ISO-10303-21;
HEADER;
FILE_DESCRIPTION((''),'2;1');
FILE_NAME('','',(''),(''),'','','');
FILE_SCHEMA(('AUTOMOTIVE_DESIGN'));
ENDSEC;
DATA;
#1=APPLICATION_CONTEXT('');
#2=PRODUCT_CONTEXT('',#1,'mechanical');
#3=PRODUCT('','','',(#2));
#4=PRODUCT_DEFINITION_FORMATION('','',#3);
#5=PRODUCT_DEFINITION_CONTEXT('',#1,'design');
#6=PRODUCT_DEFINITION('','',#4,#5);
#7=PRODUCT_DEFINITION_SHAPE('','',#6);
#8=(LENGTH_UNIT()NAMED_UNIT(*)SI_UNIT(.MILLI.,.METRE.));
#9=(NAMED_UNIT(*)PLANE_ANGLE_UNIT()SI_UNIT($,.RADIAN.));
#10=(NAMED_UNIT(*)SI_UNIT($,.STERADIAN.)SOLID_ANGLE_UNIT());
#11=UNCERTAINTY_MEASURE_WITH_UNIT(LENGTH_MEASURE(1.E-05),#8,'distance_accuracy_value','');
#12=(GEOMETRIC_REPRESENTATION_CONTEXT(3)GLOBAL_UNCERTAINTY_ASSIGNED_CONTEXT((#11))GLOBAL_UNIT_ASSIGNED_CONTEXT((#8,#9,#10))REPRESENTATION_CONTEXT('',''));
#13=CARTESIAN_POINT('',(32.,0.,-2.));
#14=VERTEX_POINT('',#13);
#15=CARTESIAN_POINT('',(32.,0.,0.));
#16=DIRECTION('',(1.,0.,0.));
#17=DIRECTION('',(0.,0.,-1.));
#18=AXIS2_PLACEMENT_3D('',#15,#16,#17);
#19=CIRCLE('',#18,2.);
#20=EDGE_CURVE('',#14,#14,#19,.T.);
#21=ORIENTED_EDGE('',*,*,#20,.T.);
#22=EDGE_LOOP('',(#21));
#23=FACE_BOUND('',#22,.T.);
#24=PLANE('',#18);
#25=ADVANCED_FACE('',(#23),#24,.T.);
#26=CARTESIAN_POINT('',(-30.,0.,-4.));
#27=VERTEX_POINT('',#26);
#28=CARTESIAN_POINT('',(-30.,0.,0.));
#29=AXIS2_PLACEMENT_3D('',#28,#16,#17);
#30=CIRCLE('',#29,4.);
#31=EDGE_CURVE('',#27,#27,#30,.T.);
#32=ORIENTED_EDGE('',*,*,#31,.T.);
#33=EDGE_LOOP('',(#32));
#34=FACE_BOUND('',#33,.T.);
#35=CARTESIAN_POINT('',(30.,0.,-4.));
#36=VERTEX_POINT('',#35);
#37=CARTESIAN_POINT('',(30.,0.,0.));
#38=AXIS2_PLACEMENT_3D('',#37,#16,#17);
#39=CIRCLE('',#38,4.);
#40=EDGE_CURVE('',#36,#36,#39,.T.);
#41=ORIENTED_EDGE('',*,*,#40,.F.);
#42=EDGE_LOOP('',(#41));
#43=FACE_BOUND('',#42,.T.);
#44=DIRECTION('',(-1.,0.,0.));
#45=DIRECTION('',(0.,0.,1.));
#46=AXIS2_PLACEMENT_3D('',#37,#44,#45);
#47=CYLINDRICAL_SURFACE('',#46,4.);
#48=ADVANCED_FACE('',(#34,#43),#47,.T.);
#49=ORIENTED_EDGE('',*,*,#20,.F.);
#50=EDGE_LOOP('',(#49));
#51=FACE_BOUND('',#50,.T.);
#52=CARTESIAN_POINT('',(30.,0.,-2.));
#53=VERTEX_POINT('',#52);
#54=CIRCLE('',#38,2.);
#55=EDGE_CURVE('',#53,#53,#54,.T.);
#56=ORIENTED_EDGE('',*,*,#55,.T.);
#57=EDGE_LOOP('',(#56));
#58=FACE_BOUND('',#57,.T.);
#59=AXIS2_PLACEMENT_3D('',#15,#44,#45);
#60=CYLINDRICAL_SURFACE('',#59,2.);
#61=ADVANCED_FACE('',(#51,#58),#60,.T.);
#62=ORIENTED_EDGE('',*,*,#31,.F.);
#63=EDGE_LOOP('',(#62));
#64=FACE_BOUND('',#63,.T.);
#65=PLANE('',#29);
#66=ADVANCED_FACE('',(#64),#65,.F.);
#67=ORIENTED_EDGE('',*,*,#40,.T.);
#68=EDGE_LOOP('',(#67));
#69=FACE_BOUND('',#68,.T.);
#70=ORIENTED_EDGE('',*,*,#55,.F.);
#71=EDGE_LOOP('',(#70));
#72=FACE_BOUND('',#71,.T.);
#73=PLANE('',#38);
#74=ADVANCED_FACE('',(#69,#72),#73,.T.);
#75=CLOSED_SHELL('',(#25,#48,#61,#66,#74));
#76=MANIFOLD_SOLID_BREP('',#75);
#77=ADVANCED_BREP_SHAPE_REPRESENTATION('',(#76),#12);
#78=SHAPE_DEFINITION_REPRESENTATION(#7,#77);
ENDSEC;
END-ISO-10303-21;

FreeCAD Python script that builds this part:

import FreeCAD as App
import Part
import Sketcher
Q = App.Units.Quantity

doc = App.newDocument("Part")
body = doc.addObject("PartDesign::Body", "Body")

# Sketch on YZ plane
sketch1 = doc.addObject("Sketcher::SketchObject", "Sketch")
body.addObject(sketch1)
sketch1.AttachmentSupport = (doc.YZ_Plane, [""])
sketch1.MapMode = "FlatFace"
sketch1.addGeometry(Part.Circle(App.Vector(0, 0, 0), App.Vector(0, 0, 1), 4), False)
sketch1.addConstraint([
    Sketcher.Constraint("Coincident", 0, 3, -1, 1),
    Sketcher.Constraint("Diameter", 0, Q("8 mm")),
])
pad1 = doc.addObject("PartDesign::Pad", "Pad")
body.addObject(pad1)
pad1.Profile = sketch1
pad1.Length = 60
pad1.Midplane = True

# Sketch on YZ plane
sketch2 = doc.addObject("Sketcher::SketchObject", "Sketch001")
body.addObject(sketch2)
sketch2.AttachmentSupport = (doc.YZ_Plane, [""])
sketch2.MapMode = "FlatFace"
sketch2.AttachmentOffset = App.Placement(App.Vector(0, 0, 30), App.Rotation())
sketch2.addGeometry(Part.Circle(App.Vector(0, 0, 0), App.Vector(0, 0, 1), 2), False)
sketch2.addConstraint([
    Sketcher.Constraint("Coincident", 0, 3, -1, 1),
    Sketcher.Constraint("Diameter", 0, Q("4 mm")),
])
pad2 = doc.addObject("PartDesign::Pad", "Pad001")
body.addObject(pad2)
pad2.Profile = sketch2
pad2.Length = 2

doc.recompute()
